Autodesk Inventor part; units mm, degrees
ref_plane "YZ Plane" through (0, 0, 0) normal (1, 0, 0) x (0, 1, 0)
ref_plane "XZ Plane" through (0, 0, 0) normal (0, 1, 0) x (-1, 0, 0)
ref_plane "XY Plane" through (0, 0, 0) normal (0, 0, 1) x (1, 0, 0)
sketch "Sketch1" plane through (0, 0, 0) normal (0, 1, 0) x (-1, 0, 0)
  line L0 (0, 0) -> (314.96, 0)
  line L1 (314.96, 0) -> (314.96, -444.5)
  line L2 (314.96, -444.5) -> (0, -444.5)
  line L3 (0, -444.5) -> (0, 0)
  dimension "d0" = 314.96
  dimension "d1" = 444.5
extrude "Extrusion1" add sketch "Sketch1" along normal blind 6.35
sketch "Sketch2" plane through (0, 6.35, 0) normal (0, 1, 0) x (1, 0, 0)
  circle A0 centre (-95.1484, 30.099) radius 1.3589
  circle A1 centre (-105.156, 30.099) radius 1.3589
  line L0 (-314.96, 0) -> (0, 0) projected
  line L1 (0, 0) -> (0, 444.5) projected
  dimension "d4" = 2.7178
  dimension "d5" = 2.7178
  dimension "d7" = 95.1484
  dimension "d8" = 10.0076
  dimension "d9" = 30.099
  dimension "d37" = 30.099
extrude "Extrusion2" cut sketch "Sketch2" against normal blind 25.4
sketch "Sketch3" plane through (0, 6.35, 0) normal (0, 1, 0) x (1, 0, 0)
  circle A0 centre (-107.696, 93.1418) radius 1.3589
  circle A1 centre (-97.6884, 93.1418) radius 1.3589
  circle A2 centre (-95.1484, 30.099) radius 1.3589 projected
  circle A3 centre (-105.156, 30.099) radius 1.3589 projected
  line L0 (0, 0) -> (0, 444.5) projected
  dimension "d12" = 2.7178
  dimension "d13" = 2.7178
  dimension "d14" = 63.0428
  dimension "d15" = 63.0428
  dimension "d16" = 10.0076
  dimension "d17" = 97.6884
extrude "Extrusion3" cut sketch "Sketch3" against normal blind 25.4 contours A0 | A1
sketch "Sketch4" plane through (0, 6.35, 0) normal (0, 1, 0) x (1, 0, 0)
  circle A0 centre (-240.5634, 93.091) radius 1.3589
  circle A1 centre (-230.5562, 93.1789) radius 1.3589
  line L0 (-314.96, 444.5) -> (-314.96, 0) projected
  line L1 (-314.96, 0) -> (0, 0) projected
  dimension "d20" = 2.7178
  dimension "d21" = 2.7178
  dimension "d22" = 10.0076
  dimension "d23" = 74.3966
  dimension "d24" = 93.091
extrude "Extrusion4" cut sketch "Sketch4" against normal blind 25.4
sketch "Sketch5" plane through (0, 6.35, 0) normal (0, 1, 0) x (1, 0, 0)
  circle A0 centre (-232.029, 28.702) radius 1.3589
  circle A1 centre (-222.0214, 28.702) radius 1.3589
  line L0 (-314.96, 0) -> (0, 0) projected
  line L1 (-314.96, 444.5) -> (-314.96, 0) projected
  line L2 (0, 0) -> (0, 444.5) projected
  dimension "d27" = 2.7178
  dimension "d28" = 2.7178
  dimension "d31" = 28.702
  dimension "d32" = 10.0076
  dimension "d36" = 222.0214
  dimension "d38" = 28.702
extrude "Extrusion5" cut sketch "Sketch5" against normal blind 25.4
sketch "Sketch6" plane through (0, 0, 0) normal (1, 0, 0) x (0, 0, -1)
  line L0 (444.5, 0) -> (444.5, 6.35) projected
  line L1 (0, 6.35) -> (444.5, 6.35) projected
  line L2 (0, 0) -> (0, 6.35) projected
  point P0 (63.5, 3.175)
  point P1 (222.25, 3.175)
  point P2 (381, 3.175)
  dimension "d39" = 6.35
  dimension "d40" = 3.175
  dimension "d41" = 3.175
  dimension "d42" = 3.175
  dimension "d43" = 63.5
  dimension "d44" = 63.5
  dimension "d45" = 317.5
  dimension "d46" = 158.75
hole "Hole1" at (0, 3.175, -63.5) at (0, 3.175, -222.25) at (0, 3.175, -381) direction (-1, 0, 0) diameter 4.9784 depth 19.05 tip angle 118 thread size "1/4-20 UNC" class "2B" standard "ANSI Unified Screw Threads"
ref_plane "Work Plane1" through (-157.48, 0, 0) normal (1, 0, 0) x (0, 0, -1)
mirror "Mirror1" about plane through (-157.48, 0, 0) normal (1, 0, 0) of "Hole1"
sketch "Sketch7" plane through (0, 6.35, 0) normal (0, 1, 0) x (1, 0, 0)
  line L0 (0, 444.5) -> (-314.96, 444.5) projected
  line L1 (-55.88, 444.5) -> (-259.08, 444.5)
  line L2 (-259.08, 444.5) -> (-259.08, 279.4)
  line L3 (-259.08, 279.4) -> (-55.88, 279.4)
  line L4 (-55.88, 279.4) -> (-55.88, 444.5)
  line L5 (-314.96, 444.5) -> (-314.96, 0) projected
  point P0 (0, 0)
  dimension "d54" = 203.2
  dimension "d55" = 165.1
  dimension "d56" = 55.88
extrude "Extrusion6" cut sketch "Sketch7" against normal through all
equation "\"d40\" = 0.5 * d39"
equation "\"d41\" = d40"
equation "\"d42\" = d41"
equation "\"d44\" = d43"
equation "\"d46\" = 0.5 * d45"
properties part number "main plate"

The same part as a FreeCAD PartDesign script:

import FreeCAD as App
import Part
import Sketcher

V = App.Vector
Q = App.Units.Quantity

doc = App.newDocument("Part")
body = doc.addObject("PartDesign::Body", "Body")

# Sketch on XZ plane
sketch1 = doc.addObject("Sketcher::SketchObject", "Sketch")
body.addObject(sketch1)
sketch1.AttachmentSupport = (doc.XZ_Plane, [""])
sketch1.MapMode = "FlatFace"
sketch1.addGeometry([
    Part.LineSegment(V(-315, 0, 0), V(0, 0, 0)),
    Part.LineSegment(V(0, 0, 0), V(0, -444, 0)),
    Part.LineSegment(V(0, -444, 0), V(-315, -444, 0)),
    Part.LineSegment(V(-315, -444, 0), V(-315, 0, 0)),
], False)
sketch1.addConstraint([
    Sketcher.Constraint("Coincident", 0, 2, 1, 1),
    Sketcher.Constraint("Coincident", 1, 2, 2, 1),
    Sketcher.Constraint("Coincident", 2, 2, 3, 1),
    Sketcher.Constraint("Coincident", 3, 2, 0, 1),
    Sketcher.Constraint("Horizontal", 0),
    Sketcher.Constraint("Vertical", 1),
    Sketcher.Constraint("Horizontal", 2),
    Sketcher.Constraint("Vertical", 3),
    Sketcher.Constraint("Coincident", 0, 2, -1, 1),
    Sketcher.Constraint("DistanceX", 0, 1, 0, 2, Q("12.4 in")),
    Sketcher.Constraint("DistanceY", 1, 2, 1, 1, Q("17.5 in")),
])
pad1 = doc.addObject("PartDesign::Pad", "Pad")
body.addObject(pad1)
pad1.Profile = sketch1
pad1.Length = Q("0.25 in")
pad1.Reversed = True

# Sketch on XZ plane
sketch2 = doc.addObject("Sketcher::SketchObject", "Sketch001")
body.addObject(sketch2)
sketch2.AttachmentSupport = (doc.XZ_Plane, [""])
sketch2.MapMode = "FlatFace"
sketch2.AttachmentOffset = App.Placement(V(0, 0, -0.25 * 25.4), App.Rotation())
sketch2.addGeometry([
    Part.Circle(V(-95.1, -30.1, 0), V(0, 0, 1), 1.4),
    Part.Circle(V(-105.2, -30.1, 0), V(0, 0, 1), 1.4),
], False)
sketch2.addConstraint([
    Sketcher.Constraint("Equal", 0, 1),
    Sketcher.Constraint("Horizontal", 0, 3, 1, 3),
    Sketcher.Constraint("Diameter", 0, Q("0.107 in")),
    Sketcher.Constraint("DistanceX", 0, 3, -1, 1, Q("3.746 in")),
    Sketcher.Constraint("DistanceY", 0, 3, -1, 1, Q("1.185 in")),
    Sketcher.Constraint("DistanceX", 1, 3, 0, 3, Q("0.394 in")),
])
pocket1 = doc.addObject("PartDesign::Pocket", "Pocket")
body.addObject(pocket1)
pocket1.Profile = sketch2
pocket1.Length = Q("1 in")
pocket1.Reversed = True

# Sketch on XZ plane
sketch3 = doc.addObject("Sketcher::SketchObject", "Sketch002")
body.addObject(sketch3)
sketch3.AttachmentSupport = (doc.XZ_Plane, [""])
sketch3.MapMode = "FlatFace"
sketch3.AttachmentOffset = App.Placement(V(0, 0, -0.25 * 25.4), App.Rotation())
sketch3.addGeometry([
    Part.Circle(V(-107.7, -93.1, 0), V(0, 0, 1), 1.4),
    Part.Circle(V(-97.7, -93.1, 0), V(0, 0, 1), 1.4),
], False)
sketch3.addConstraint([
    Sketcher.Constraint("Equal", 0, 1),
    Sketcher.Constraint("Horizontal", 0, 3, 1, 3),
    Sketcher.Constraint("Diameter", 0, Q("0.107 in")),
    Sketcher.Constraint("DistanceX", 1, 3, -1, 1, Q("3.846 in")),
    Sketcher.Constraint("DistanceX", 0, 3, 1, 3, Q("0.394 in")),
    Sketcher.Constraint("DistanceY", 0, 3, -1, 1, Q("3.667 in")),
])
pocket2 = doc.addObject("PartDesign::Pocket", "Pocket001")
body.addObject(pocket2)
pocket2.Profile = sketch3
pocket2.Length = Q("1 in")
pocket2.Reversed = True

# Sketch on XZ plane
sketch4 = doc.addObject("Sketcher::SketchObject", "Sketch003")
body.addObject(sketch4)
sketch4.AttachmentSupport = (doc.XZ_Plane, [""])
sketch4.MapMode = "FlatFace"
sketch4.AttachmentOffset = App.Placement(V(0, 0, -0.25 * 25.4), App.Rotation())
sketch4.addGeometry([
    Part.Circle(V(-240.6, -93.1, 0), V(0, 0, 1), 1.4),
    Part.Circle(V(-230.6, -93.2, 0), V(0, 0, 1), 1.4),
], False)
sketch4.addConstraint([
    Sketcher.Constraint("Equal", 0, 1),
    Sketcher.Constraint("Diameter", 0, Q("0.107 in")),
    Sketcher.Constraint("DistanceY", 0, 3, -1, 1, Q("3.665 in")),
    Sketcher.Constraint("DistanceX", 0, 3, 1, 3, Q("10.0072 mm")),
    Sketcher.Constraint("DistanceX", 0, 3, -1, 1, Q("9.471 in")),
    Sketcher.Constraint("DistanceY", 1, 3, -1, 1, Q("93.179 mm")),
])
pocket3 = doc.addObject("PartDesign::Pocket", "Pocket002")
body.addObject(pocket3)
pocket3.Profile = sketch4
pocket3.Length = Q("1 in")
pocket3.Reversed = True

# Sketch on XZ plane
sketch5 = doc.addObject("Sketcher::SketchObject", "Sketch004")
body.addObject(sketch5)
sketch5.AttachmentSupport = (doc.XZ_Plane, [""])
sketch5.MapMode = "FlatFace"
sketch5.AttachmentOffset = App.Placement(V(0, 0, -0.25 * 25.4), App.Rotation())
sketch5.addGeometry([
    Part.Circle(V(-232, -28.7, 0), V(0, 0, 1), 1.4),
    Part.Circle(V(-222, -28.7, 0), V(0, 0, 1), 1.4),
], False)
sketch5.addConstraint([
    Sketcher.Constraint("Equal", 0, 1),
    Sketcher.Constraint("Horizontal", 0, 3, 1, 3),
    Sketcher.Constraint("Diameter", 0, Q("0.107 in")),
    Sketcher.Constraint("DistanceY", 0, 3, -1, 1, Q("1.13 in")),
    Sketcher.Constraint("DistanceX", 1, 3, -1, 1, Q("8.741 in")),
    Sketcher.Constraint("DistanceX", 0, 3, 1, 3, Q("0.394 in")),
])
pocket4 = doc.addObject("PartDesign::Pocket", "Pocket003")
body.addObject(pocket4)
pocket4.Profile = sketch5
pocket4.Length = Q("1 in")
pocket4.Reversed = True

# Sketch on YZ plane
sketch6 = doc.addObject("Sketcher::SketchObject", "Sketch005")
body.addObject(sketch6)
sketch6.AttachmentSupport = (doc.YZ_Plane, [""])
sketch6.MapMode = "FlatFace"
sketch6.addGeometry([
    Part.Circle(V(3.2, -63.5, 0), V(0, 0, 1), 2.5),
    Part.Circle(V(3.2, -222.2, 0), V(0, 0, 1), 2.5),
    Part.Circle(V(3.2, -381, 0), V(0, 0, 1), 2.5),
], False)
sketch6.addConstraint([
    Sketcher.Constraint("Equal", 0, 1),
    Sketcher.Constraint("Equal", 1, 2),
    Sketcher.Constraint("Vertical", 0, 3, 1, 3),
    Sketcher.Constraint("Vertical", 1, 3, 2, 3),
    Sketcher.Constraint("Diameter", 0, Q("0.196 in")),
    Sketcher.Constraint("DistanceY", 2, 3, -1, 1, Q("15 in")),
    Sketcher.Constraint("DistanceY", 0, 3, -1, 1, Q("2.5 in")),
    Sketcher.Constraint("DistanceY", 1, 3, -1, 1, Q("8.75 in")),
    Sketcher.Constraint("DistanceX", -1, 1, 0, 3, Q("0.125 in")),
])
doc.recompute()
hole = doc.addObject("PartDesign::Hole", "Hole")
body.addObject(hole)
hole.Profile = sketch6
hole.ThreadType = "None"
hole.Diameter = Q("0.196 in")
hole.DepthType = "Dimension"
hole.Depth = Q("0.75 in")
hole.DrillPoint = "Angled"
hole.DrillPointAngle = 118
doc.recompute()

datumplane = doc.addObject("PartDesign::Plane", "DatumPlane")
body.addObject(datumplane)
datumplane.AttachmentSupport = (doc.YZ_Plane, [""])
datumplane.MapMode = "FlatFace"
datumplane.AttachmentOffset = App.Placement(V(0, 0, -6.2 * 25.4), App.Rotation())
mirrored = doc.addObject("PartDesign::Mirrored", "Mirrored")
body.addObject(mirrored)
mirrored.Originals = [hole]
mirrored.MirrorPlane = (datumplane, [""])
body.Tip = mirrored

# Sketch on XZ plane
sketch7 = doc.addObject("Sketcher::SketchObject", "Sketch006")
body.addObject(sketch7)
sketch7.AttachmentSupport = (doc.XZ_Plane, [""])
sketch7.MapMode = "FlatFace"
sketch7.AttachmentOffset = App.Placement(V(0, 0, -0.25 * 25.4), App.Rotation())
sketch7.addGeometry([
    Part.LineSegment(V(-56, -279, 0), V(-56, -444, 0)),
    Part.LineSegment(V(-56, -444, 0), V(-259, -444, 0)),
    Part.LineSegment(V(-259, -444, 0), V(-259, -279, 0)),
    Part.LineSegment(V(-259, -279, 0), V(-56, -279, 0)),
], False)
sketch7.addConstraint([
    Sketcher.Constraint("Coincident", 0, 2, 1, 1),
    Sketcher.Constraint("Coincident", 1, 2, 2, 1),
    Sketcher.Constraint("Coincident", 2, 2, 3, 1),
    Sketcher.Constraint("Coincident", 3, 2, 0, 1),
    Sketcher.Constraint("Vertical", 0),
    Sketcher.Constraint("Horizontal", 1),
    Sketcher.Constraint("Vertical", 2),
    Sketcher.Constraint("Horizontal", 3),
    Sketcher.Constraint("DistanceX", 1, 2, 1, 1, Q("8 in")),
    Sketcher.Constraint("DistanceY", 0, 2, 0, 1, Q("6.5 in")),
    Sketcher.Constraint("DistanceX", 0, 2, -1, 1, Q("2.2 in")),
    Sketcher.Constraint("DistanceY", 2, 2, -1, 1, Q("11 in")),
])
pocket5 = doc.addObject("PartDesign::Pocket", "Pocket004")
body.addObject(pocket5)
pocket5.Profile = sketch7
pocket5.Type = "ThroughAll"
pocket5.Reversed = True

doc.recompute()
